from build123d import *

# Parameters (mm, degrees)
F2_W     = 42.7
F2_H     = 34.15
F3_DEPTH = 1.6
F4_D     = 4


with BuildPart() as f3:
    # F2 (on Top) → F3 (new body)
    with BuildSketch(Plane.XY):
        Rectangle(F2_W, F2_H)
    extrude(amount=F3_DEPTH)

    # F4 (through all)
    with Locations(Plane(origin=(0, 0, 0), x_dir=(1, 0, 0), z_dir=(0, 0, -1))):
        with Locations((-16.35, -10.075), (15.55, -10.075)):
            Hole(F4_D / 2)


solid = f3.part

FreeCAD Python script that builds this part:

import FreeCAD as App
import Part
import Sketcher
from FreeCAD import Vector
Q = App.Units.Quantity


def add_polygon(sketch, points):
    """Adds a closed chain of lines whose ends are joined by coincident constraints."""
    first, n = sketch.GeometryCount, len(points)
    for a, b in zip(points, points[1:] + points[:1]):
        sketch.addGeometry(Part.LineSegment(App.Vector(*a, 0), App.Vector(*b, 0)), False)
    for i in range(n):
        sketch.addConstraint(Sketcher.Constraint("Coincident", first + i, 2, first + (i + 1) % n, 1))

doc = App.newDocument("Part")
body = doc.addObject("PartDesign::Body", "Body")

# Sketch on XY plane
sketch1 = body.newObject("Sketcher::SketchObject", "Sketch")
sketch1.AttachmentSupport = (doc.getObject("XY_Plane"), [""])
sketch1.MapMode = "FlatFace"
add_polygon(sketch1, [(-21, 17), (-21, -17), (21, -17), (21, 17)])  # lines 0-3
sketch1.addConstraint(Sketcher.Constraint("Vertical", 0))
sketch1.addConstraint(Sketcher.Constraint("Horizontal", 1))
sketch1.addConstraint(Sketcher.Constraint("Vertical", 2))
sketch1.addConstraint(Sketcher.Constraint("Horizontal", 3))
sketch1.addConstraint(Sketcher.Constraint("Symmetric", 0, 2, 2, 2, -1, 1))
sketch1.addConstraint(Sketcher.Constraint("DistanceX", 1, 1, 1, 2, Q("42.7 mm")))
sketch1.addConstraint(Sketcher.Constraint("DistanceY", 0, 2, 0, 1, Q("34.15 mm")))
pad1 = body.newObject("PartDesign::Pad", "Pad")
pad1.Profile = sketch1
pad1.Length = 1.6

# Sketch on XY plane
sketch2 = body.newObject("Sketcher::SketchObject", "Sketch001")
sketch2.AttachmentSupport = (doc.getObject("XY_Plane"), [""])
sketch2.MapMode = "FlatFace"
sketch2.addGeometry(Part.Circle(Vector(-16.4, 10.1, 0), Vector(0, 0, 1), 2), False)
sketch2.addGeometry(Part.Circle(Vector(15.6, 10.1, 0), Vector(0, 0, 1), 2), False)
sketch2.addConstraint(Sketcher.Constraint("Equal", 0, 1))
sketch2.addConstraint(Sketcher.Constraint("Horizontal", 0, 3, 1, 3))
sketch2.addConstraint(Sketcher.Constraint("Diameter", 0, Q("4 mm")))
sketch2.addConstraint(Sketcher.Constraint("DistanceX", 0, 3, 1, 3, Q("31.9 mm")))
sketch2.addConstraint(Sketcher.Constraint("DistanceX", 0, 3, -1, 1, Q("16.35 mm")))
sketch2.addConstraint(Sketcher.Constraint("DistanceY", -1, 1, 0, 3, Q("10.075 mm")))
doc.recompute()
hole = body.newObject("PartDesign::Hole", "Hole")
hole.Profile = sketch2
hole.ThreadType = "None"
hole.Diameter = 4
hole.DepthType = "ThroughAll"
hole.Reversed = True

doc.recompute()
